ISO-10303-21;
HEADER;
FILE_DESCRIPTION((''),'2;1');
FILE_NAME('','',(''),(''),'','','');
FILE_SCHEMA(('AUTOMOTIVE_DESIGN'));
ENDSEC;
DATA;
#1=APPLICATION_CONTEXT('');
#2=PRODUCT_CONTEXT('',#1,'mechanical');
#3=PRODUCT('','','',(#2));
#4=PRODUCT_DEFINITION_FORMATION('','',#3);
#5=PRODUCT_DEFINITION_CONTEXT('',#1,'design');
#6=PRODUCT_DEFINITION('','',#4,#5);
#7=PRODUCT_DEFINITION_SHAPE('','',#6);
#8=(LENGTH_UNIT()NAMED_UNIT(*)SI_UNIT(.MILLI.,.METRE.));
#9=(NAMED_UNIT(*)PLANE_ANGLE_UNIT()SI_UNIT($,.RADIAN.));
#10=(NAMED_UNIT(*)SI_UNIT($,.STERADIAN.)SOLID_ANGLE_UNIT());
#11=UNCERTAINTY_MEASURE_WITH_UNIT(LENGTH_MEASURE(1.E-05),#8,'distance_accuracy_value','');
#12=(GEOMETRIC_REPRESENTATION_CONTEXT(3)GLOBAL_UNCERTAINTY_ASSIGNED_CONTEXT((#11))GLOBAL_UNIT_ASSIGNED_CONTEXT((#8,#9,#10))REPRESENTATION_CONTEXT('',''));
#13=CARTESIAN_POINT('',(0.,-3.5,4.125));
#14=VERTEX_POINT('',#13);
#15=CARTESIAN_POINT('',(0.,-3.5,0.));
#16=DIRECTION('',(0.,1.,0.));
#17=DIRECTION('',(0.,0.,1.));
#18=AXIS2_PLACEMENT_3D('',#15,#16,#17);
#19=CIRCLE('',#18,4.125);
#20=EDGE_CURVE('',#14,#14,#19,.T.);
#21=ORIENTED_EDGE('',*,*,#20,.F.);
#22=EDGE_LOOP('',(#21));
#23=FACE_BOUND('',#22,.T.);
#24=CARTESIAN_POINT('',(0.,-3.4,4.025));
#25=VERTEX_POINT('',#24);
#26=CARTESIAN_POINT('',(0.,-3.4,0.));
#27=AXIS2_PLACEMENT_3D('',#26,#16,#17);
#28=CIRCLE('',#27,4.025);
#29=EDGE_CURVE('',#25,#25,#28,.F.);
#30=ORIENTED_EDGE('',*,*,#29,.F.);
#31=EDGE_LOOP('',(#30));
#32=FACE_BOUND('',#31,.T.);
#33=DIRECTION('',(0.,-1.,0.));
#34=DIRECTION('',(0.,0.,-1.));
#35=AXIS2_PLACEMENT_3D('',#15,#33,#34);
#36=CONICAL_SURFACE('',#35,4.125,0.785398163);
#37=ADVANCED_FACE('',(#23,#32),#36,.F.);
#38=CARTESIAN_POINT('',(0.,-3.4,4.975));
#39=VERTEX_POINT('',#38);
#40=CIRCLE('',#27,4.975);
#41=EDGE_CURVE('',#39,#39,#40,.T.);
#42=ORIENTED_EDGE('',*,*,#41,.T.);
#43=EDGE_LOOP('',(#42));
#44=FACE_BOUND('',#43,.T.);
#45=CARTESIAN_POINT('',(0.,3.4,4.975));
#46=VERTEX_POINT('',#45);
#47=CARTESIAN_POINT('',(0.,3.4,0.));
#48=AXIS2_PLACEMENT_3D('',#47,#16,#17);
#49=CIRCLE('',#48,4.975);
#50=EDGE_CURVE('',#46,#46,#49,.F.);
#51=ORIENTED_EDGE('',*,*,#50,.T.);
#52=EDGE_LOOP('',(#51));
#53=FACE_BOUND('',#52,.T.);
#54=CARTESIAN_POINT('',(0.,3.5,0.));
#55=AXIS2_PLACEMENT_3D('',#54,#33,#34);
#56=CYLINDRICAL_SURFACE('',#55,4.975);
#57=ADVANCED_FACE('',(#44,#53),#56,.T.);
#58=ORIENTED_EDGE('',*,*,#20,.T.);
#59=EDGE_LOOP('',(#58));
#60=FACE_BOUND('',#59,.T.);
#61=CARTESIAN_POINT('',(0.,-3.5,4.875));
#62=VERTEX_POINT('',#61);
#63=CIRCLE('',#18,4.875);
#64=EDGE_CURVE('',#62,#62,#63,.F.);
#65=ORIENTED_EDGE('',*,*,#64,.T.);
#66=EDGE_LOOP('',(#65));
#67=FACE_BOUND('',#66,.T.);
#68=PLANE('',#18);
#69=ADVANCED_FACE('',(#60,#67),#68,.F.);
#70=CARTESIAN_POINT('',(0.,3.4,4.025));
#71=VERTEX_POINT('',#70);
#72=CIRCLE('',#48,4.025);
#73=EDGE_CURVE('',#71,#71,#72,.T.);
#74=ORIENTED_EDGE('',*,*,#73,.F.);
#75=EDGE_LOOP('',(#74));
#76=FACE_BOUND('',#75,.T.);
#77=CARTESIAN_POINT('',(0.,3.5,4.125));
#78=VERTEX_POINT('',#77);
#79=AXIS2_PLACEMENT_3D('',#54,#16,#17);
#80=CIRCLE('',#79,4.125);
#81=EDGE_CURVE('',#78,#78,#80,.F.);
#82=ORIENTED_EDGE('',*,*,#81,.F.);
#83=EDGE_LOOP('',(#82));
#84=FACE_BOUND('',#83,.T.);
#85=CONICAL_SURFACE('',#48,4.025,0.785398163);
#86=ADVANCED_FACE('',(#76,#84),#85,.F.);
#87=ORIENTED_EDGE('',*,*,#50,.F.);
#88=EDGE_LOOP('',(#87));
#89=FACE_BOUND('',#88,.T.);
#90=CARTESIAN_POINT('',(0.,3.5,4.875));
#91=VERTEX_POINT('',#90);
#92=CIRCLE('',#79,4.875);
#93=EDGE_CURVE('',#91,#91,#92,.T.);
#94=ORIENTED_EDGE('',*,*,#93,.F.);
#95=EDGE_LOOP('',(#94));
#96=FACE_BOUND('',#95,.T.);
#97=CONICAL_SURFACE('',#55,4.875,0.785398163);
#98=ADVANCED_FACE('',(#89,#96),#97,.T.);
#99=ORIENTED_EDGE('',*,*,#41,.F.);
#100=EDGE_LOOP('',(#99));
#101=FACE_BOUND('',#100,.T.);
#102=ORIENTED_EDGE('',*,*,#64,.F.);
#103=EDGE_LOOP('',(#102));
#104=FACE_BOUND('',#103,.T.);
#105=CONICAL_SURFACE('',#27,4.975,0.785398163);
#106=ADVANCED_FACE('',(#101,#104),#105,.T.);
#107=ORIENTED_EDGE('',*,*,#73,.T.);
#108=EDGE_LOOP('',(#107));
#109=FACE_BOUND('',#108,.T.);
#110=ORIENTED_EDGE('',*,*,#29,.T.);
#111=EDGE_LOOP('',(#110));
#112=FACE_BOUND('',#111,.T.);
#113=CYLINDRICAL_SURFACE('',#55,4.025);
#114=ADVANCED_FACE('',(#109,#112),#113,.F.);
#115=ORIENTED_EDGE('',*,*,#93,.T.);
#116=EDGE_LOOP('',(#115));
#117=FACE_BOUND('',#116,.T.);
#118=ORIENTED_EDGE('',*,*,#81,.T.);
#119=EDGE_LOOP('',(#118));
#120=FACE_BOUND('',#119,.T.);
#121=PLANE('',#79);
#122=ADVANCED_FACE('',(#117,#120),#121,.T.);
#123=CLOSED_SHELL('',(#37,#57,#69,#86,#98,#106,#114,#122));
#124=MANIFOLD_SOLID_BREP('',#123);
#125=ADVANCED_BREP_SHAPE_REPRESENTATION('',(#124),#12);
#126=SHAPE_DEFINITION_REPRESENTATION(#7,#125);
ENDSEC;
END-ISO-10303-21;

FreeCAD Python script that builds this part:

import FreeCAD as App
import Part
import Sketcher

V = App.Vector


def edges_at(feature, points):
    """Names of the edges that pass closest to the given points."""
    edges = feature.Shape.Edges
    near = lambda p: min(range(len(edges)), key=lambda i: edges[i].distToShape(Part.Vertex(*p))[0])
    return sorted({f"Edge{near(p) + 1}" for p in points})

doc = App.newDocument("Part")
body = doc.addObject("PartDesign::Body", "Body")

sketch1 = body.newObject("Sketcher::SketchObject", "Sketch")
sketch1.AttachmentSupport = (doc.getObject("XZ_Plane"), [""])
sketch1.MapMode = "FlatFace"
sketch1.addGeometry([
    Part.Circle(V(0, 0, 0), V(0, 0, 1), 5),
    Part.Circle(V(0, 0, 0), V(0, 0, 1), 4),
], False)
sketch1.addConstraint([
    Sketcher.Constraint("Coincident", 0, 3, -1, 1),
    Sketcher.Constraint("Coincident", 1, 3, -1, 1),
    Sketcher.Constraint("Diameter", 0, 9.95),
    Sketcher.Constraint("Diameter", 1, 8.05),
])
pad1 = body.newObject("PartDesign::Pad", "Pad")
pad1.Profile = sketch1
pad1.Length = 7
pad1.Midplane = True
doc.recompute()

chamfer = body.newObject("PartDesign::Chamfer", "Chamfer")
chamfer.Base = (pad1, edges_at(pad1, [
    (-4.975, -3.5, 0),
    (-4.975, 3.5, 0),
    (-4.025, -3.5, 0),
    (-4.025, 3.5, 0),
]))
chamfer.Size = 0.1

doc.recompute()
